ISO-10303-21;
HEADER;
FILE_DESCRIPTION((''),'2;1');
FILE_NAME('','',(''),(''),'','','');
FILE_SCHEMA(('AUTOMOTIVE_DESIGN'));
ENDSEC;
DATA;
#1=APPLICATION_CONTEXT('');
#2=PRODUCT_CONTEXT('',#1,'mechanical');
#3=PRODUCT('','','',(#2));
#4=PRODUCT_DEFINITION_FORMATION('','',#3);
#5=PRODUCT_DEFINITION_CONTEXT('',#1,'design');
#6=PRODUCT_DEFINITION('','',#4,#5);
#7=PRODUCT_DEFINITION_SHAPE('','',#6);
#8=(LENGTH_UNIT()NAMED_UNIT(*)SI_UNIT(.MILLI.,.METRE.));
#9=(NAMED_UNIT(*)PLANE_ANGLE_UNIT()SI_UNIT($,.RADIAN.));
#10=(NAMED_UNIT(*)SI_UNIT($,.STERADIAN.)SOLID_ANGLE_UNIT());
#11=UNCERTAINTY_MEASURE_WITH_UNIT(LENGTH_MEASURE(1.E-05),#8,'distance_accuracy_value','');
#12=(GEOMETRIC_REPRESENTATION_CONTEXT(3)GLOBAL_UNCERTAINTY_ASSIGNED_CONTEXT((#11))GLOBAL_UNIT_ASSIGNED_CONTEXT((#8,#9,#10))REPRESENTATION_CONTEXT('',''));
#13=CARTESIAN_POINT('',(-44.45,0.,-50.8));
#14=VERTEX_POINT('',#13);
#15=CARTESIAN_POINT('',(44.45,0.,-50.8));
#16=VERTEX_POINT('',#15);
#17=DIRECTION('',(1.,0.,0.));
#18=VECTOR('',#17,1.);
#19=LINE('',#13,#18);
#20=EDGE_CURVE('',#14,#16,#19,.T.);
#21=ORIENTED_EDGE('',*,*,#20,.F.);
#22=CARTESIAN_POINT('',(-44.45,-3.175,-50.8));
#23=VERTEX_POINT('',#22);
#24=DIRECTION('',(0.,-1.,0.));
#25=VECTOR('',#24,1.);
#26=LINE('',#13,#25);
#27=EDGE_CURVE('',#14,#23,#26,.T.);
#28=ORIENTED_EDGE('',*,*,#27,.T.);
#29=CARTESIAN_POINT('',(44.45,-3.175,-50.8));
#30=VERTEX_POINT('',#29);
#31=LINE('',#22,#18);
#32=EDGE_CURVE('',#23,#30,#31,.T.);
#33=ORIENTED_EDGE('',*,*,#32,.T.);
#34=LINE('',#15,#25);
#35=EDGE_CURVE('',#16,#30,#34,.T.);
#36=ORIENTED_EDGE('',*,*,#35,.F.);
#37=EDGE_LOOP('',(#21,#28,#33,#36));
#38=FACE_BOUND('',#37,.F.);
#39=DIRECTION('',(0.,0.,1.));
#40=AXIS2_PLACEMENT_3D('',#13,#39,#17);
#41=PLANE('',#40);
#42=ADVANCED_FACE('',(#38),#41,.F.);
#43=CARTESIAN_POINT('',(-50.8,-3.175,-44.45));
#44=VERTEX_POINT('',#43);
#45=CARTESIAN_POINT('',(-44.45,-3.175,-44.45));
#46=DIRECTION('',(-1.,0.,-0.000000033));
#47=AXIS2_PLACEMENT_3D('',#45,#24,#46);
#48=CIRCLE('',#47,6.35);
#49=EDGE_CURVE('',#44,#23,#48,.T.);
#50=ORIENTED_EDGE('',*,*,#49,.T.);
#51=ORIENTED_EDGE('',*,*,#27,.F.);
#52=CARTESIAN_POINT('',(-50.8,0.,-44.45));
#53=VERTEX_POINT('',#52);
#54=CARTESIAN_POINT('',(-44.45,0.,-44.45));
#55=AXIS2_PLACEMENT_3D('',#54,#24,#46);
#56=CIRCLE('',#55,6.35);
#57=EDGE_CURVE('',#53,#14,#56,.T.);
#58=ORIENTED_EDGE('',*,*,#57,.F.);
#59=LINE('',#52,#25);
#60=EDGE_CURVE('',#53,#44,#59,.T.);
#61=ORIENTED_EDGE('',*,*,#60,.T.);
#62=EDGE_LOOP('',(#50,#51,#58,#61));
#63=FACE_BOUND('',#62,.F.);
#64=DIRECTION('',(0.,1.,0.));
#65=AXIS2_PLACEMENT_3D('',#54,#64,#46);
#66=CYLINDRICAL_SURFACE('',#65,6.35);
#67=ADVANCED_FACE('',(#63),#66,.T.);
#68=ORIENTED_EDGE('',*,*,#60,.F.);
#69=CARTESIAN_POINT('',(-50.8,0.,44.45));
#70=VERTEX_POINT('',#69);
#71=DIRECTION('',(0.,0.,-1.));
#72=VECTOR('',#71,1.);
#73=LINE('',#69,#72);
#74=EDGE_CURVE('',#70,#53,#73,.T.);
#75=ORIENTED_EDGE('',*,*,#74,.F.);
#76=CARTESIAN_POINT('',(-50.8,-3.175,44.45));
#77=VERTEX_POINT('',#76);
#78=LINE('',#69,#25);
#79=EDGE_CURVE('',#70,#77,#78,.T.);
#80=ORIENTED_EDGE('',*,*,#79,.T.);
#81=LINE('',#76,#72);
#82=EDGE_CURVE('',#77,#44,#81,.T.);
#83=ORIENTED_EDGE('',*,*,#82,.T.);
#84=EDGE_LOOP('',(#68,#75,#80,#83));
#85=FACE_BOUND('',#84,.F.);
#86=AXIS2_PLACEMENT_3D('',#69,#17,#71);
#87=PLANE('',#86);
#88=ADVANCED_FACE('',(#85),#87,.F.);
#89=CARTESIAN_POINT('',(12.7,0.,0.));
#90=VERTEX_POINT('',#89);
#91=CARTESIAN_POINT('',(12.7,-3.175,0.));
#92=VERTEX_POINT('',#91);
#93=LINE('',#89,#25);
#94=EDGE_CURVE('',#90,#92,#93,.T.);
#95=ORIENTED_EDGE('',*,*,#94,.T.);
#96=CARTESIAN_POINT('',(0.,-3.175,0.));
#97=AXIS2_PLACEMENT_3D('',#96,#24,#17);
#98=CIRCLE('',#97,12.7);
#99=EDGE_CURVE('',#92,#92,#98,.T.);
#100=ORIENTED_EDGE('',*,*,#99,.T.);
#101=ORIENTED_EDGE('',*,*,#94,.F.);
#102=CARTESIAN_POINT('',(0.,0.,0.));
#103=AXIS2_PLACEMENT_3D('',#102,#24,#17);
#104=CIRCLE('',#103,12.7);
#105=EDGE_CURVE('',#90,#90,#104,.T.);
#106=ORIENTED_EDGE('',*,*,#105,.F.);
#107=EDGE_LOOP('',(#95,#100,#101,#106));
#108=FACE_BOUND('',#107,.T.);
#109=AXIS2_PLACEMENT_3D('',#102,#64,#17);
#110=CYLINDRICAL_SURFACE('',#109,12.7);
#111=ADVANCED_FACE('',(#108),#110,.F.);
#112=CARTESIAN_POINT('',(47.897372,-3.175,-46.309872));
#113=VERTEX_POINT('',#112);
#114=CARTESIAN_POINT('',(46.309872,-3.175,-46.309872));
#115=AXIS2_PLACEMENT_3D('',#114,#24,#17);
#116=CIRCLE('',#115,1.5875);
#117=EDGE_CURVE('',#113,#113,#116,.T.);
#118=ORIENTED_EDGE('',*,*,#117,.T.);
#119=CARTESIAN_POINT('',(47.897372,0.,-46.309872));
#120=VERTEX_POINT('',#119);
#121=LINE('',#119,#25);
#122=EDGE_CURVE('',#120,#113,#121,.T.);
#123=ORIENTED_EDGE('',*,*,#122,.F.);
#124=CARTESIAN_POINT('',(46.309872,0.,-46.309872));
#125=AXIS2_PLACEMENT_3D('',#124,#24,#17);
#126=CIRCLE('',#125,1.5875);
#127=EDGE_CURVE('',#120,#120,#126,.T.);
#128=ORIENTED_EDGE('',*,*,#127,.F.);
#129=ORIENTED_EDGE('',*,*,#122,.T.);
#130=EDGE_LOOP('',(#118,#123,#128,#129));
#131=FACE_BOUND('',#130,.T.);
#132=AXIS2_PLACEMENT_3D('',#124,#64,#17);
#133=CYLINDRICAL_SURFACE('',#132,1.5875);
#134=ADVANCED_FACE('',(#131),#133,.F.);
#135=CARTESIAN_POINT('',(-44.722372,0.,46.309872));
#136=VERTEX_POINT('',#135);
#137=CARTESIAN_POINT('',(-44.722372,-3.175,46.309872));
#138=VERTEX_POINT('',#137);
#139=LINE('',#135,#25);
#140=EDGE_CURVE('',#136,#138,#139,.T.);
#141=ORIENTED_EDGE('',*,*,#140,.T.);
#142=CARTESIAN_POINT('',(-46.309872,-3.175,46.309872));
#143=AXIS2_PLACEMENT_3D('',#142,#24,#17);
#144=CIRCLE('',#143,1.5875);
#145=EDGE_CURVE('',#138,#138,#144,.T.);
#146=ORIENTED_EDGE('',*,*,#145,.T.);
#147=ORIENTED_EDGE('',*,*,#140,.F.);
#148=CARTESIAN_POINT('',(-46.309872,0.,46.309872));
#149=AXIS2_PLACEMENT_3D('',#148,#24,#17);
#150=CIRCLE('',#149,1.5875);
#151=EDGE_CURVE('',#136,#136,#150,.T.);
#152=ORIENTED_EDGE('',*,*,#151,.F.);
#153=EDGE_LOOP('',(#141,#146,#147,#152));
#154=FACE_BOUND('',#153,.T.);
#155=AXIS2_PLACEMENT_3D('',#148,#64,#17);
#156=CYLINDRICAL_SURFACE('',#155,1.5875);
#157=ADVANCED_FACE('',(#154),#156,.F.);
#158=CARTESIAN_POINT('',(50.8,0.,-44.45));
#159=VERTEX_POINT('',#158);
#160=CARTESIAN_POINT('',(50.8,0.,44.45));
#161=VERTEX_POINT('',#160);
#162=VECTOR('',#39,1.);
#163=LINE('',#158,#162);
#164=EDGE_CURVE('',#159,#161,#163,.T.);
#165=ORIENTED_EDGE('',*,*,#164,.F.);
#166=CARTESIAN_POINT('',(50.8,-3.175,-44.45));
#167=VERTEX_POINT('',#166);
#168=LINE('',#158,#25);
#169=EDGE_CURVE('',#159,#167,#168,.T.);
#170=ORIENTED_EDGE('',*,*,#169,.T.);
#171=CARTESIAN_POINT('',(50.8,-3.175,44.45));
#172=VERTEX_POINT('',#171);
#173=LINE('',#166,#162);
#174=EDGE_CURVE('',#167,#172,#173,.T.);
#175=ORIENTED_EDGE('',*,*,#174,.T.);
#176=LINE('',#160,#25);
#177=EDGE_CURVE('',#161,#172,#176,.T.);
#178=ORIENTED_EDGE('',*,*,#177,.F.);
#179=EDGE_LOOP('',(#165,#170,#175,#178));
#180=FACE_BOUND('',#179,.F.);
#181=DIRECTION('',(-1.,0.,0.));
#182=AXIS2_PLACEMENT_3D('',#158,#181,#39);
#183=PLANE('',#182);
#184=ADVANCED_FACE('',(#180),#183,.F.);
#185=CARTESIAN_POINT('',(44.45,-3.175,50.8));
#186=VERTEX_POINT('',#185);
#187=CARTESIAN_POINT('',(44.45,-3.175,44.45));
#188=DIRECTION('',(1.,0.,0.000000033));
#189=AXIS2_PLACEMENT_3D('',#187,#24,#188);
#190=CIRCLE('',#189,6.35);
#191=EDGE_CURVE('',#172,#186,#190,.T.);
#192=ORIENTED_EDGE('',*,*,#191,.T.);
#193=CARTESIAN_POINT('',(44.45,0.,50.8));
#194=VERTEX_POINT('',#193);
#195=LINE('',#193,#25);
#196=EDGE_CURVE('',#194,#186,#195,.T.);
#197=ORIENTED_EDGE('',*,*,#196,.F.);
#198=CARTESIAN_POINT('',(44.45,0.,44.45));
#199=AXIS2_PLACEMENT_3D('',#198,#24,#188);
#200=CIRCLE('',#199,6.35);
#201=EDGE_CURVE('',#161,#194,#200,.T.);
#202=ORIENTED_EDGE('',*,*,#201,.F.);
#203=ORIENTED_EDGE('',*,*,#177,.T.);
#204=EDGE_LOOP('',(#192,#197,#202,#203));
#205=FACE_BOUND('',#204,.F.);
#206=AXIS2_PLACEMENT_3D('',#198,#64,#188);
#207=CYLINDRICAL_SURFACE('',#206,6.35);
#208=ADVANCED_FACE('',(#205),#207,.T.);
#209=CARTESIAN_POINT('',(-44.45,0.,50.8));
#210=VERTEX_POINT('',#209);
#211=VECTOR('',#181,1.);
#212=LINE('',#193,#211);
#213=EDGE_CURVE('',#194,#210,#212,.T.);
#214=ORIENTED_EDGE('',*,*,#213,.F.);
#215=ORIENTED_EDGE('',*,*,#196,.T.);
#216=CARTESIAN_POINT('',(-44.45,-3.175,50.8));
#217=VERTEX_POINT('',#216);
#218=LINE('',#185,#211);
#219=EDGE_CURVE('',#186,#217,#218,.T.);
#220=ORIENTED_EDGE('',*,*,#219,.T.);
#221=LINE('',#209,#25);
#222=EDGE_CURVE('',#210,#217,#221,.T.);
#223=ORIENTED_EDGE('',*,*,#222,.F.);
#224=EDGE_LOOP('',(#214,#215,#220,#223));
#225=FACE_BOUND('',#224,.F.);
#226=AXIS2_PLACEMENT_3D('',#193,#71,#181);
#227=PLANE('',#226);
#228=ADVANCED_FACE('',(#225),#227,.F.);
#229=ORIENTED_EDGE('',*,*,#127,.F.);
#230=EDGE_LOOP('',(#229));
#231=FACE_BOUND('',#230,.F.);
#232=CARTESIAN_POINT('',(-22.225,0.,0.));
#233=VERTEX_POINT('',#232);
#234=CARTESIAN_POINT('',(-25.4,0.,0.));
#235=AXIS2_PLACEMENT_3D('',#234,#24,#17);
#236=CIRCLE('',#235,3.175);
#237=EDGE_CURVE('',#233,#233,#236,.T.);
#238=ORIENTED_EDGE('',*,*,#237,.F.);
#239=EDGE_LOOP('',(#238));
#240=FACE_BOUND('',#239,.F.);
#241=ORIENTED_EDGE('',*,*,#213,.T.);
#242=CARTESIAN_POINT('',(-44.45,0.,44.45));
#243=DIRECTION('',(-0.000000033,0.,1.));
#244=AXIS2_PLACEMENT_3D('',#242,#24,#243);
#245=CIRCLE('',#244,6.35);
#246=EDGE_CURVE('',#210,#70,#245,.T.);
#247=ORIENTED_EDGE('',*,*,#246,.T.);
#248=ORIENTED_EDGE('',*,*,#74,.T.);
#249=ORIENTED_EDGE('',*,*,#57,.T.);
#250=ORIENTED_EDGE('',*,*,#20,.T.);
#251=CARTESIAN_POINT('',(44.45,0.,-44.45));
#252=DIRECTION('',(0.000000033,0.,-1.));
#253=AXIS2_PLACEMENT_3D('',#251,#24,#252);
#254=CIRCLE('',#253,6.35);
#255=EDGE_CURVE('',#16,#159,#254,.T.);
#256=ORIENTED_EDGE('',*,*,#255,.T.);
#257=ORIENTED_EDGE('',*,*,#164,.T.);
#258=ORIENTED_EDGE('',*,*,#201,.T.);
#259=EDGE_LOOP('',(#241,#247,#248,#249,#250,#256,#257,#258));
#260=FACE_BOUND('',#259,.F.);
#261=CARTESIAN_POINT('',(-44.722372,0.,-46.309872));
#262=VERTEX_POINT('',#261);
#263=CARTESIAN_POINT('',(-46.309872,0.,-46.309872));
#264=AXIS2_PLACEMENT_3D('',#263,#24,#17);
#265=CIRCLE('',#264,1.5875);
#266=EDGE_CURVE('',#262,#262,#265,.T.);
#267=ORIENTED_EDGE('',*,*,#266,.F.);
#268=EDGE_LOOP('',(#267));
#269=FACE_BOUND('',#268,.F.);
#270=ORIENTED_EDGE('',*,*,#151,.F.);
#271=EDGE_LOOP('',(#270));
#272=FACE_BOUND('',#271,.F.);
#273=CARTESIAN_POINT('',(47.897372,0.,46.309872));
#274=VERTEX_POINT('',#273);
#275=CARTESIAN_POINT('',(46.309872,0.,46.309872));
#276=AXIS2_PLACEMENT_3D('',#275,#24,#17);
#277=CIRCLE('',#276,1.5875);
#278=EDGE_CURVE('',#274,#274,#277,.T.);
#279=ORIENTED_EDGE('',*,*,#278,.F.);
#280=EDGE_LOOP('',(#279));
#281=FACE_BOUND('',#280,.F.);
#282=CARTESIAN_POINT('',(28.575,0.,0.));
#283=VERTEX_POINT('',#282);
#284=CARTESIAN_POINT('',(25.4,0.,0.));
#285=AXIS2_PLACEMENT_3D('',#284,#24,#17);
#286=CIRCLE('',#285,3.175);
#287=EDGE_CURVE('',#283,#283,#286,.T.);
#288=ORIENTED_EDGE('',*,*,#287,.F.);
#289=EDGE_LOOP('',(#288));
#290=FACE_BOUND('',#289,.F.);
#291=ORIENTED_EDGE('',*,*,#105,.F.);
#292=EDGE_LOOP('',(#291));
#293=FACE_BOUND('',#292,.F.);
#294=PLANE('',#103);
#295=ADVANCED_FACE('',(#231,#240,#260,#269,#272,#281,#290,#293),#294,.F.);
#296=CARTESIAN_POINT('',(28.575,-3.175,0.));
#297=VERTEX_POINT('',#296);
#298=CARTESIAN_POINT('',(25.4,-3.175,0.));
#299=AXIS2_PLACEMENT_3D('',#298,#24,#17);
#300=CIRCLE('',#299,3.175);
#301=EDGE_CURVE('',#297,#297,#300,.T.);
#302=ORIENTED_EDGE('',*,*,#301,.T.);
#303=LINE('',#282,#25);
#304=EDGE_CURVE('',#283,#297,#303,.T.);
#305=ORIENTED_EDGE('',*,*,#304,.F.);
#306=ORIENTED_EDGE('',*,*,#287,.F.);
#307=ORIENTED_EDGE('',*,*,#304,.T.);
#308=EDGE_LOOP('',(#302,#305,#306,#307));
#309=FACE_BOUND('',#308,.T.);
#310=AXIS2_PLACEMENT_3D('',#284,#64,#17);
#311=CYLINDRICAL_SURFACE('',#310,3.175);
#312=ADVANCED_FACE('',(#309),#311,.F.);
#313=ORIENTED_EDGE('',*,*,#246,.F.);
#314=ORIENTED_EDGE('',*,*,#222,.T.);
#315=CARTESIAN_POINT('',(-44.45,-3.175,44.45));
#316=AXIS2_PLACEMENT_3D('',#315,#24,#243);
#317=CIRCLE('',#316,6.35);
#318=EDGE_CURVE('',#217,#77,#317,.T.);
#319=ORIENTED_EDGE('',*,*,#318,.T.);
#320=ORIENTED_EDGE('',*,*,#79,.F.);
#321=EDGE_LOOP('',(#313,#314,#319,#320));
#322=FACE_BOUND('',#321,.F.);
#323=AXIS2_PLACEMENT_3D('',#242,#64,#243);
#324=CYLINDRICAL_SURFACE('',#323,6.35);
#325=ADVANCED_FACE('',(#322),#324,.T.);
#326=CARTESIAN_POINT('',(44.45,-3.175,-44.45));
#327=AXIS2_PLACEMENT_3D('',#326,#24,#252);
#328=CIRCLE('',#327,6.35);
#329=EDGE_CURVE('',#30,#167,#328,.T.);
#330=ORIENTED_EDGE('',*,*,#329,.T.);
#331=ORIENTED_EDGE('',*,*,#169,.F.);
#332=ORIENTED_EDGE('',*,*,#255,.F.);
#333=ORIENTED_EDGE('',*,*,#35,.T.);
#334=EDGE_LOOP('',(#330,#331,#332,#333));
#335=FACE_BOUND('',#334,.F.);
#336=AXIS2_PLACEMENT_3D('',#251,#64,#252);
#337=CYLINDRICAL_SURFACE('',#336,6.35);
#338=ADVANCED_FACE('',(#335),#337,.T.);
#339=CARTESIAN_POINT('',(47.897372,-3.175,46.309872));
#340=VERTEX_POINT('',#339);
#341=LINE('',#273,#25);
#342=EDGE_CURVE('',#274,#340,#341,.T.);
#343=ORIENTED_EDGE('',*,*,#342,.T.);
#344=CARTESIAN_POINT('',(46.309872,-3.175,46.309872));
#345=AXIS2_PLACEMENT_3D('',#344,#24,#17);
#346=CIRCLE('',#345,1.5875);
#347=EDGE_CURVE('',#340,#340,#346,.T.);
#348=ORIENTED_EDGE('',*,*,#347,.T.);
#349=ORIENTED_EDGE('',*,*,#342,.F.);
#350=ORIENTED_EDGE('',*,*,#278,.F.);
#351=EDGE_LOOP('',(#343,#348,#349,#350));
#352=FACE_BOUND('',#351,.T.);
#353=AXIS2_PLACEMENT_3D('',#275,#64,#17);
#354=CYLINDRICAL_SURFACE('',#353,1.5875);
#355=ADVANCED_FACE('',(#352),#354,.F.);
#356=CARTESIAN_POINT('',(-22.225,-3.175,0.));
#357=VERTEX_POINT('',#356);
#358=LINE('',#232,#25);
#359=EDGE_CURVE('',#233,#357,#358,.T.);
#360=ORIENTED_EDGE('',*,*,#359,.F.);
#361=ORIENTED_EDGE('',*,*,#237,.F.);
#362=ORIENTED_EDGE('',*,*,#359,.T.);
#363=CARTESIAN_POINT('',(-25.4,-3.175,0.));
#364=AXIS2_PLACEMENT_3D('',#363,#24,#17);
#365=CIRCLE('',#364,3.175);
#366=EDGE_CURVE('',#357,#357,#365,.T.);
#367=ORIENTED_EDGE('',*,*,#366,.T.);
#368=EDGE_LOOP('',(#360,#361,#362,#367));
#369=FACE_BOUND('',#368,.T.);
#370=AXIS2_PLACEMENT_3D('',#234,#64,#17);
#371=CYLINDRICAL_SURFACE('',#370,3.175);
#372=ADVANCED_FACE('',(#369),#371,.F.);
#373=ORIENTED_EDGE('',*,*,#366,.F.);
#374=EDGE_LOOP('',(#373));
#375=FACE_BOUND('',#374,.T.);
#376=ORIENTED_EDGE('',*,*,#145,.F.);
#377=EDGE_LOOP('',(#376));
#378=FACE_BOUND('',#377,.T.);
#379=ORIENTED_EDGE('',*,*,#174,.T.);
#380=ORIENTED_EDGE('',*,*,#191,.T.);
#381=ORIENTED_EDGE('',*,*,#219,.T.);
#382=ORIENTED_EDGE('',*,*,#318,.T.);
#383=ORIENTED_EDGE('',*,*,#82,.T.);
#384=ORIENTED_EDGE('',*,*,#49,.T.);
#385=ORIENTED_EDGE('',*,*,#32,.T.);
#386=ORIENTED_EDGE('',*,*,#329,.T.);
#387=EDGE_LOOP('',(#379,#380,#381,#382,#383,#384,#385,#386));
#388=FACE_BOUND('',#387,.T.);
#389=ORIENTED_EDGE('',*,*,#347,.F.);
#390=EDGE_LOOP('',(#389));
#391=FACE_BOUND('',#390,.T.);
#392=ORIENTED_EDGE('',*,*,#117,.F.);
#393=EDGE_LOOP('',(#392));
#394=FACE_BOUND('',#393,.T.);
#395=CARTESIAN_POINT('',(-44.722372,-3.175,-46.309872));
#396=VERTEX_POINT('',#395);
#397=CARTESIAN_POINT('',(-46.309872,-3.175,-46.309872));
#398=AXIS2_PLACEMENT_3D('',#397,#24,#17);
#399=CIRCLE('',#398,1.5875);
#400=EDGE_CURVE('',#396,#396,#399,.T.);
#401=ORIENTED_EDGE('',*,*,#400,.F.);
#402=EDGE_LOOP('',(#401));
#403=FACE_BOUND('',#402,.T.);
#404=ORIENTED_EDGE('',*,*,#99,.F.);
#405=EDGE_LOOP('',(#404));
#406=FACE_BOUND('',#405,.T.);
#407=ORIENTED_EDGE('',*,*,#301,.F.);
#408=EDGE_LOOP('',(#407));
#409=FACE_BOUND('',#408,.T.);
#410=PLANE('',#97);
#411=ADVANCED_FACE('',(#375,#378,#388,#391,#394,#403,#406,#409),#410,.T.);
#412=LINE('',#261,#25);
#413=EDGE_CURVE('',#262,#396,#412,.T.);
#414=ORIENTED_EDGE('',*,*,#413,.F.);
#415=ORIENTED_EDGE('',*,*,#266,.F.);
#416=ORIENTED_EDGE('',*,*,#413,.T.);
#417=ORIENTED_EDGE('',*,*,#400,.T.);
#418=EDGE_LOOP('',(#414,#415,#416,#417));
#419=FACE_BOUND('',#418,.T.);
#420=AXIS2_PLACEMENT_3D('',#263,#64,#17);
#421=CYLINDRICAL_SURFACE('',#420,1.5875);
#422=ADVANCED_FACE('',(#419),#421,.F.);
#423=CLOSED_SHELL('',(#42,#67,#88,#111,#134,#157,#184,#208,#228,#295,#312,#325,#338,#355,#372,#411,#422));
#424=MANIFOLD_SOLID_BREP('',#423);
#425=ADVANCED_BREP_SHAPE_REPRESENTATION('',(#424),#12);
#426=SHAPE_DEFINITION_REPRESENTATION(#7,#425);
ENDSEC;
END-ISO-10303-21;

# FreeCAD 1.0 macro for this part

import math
import FreeCAD as App
import Part
import Sketcher
Q = App.Units.Quantity

doc = App.newDocument("Part")
body = doc.addObject("PartDesign::Body", "Body")

sketch1 = doc.addObject("Sketcher::SketchObject", "Sketch")
body.addObject(sketch1)
sketch1.AttachmentSupport = (doc.XZ_Plane, [""])
sketch1.MapMode = "FlatFace"
sketch1.addGeometry([
    Part.LineSegment(App.Vector(-44.45, -50.8, 0), App.Vector(44.45, -50.8, 0)),
    Part.ArcOfCircle(Part.Circle(App.Vector(44.45, -44.45, 0), App.Vector(0, 0, 1), 6.35), math.radians(-89.999998), math.radians(-0.000002)),
    Part.LineSegment(App.Vector(50.8, -44.45, 0), App.Vector(50.8, 44.45, 0)),
    Part.ArcOfCircle(Part.Circle(App.Vector(44.45, 44.45, 0), App.Vector(0, 0, 1), 6.35), math.radians(0.000002), math.radians(89.999998)),
    Part.LineSegment(App.Vector(44.45, 50.8, 0), App.Vector(-44.45, 50.8, 0)),
    Part.ArcOfCircle(Part.Circle(App.Vector(-44.45, 44.45, 0), App.Vector(0, 0, 1), 6.35), math.radians(90.000002), math.radians(179.999998)),
    Part.LineSegment(App.Vector(-50.8, 44.45, 0), App.Vector(-50.8, -44.45, 0)),
    Part.ArcOfCircle(Part.Circle(App.Vector(-44.45, -44.45, 0), App.Vector(0, 0, 1), 6.35), math.radians(-179.999998), math.radians(-90.000002)),
    Part.Circle(App.Vector(-46.309872, -46.309872, 0), App.Vector(0, 0, 1), 1.5875),
    Part.Circle(App.Vector(46.309872, -46.309872, 0), App.Vector(0, 0, 1), 1.5875),
    Part.Circle(App.Vector(0, 0, 0), App.Vector(0, 0, 1), 12.7),
    Part.Circle(App.Vector(-25.4, 0, 0), App.Vector(0, 0, 1), 3.175),
    Part.Circle(App.Vector(-46.309872, 46.309872, 0), App.Vector(0, 0, 1), 1.5875),
    Part.Circle(App.Vector(25.4, 0, 0), App.Vector(0, 0, 1), 3.175),
    Part.Circle(App.Vector(46.309872, 46.309872, 0), App.Vector(0, 0, 1), 1.5875),
], False)
sketch1.addConstraint([
    Sketcher.Constraint("Tangent", 0, 2, 1, 1),
    Sketcher.Constraint("Tangent", 1, 2, 2, 1),
    Sketcher.Constraint("Tangent", 2, 2, 3, 1),
    Sketcher.Constraint("Tangent", 3, 2, 4, 1),
    Sketcher.Constraint("Tangent", 4, 2, 5, 1),
    Sketcher.Constraint("Tangent", 5, 2, 6, 1),
    Sketcher.Constraint("Tangent", 6, 2, 7, 1),
    Sketcher.Constraint("Tangent", 7, 2, 0, 1),
    Sketcher.Constraint("Horizontal", 0),
    Sketcher.Constraint("Vertical", 2),
    Sketcher.Constraint("Horizontal", 4),
    Sketcher.Constraint("Vertical", 6),
    Sketcher.Constraint("Coincident", 10, 3, -1, 1),
    Sketcher.Constraint("Equal", 1, 3),
    Sketcher.Constraint("Equal", 3, 5),
    Sketcher.Constraint("Equal", 5, 7),
    Sketcher.Constraint("Equal", 8, 9),
    Sketcher.Constraint("Equal", 9, 12),
    Sketcher.Constraint("Equal", 11, 13),
    Sketcher.Constraint("Equal", 12, 14),
    Sketcher.Constraint("Symmetric", 1, 3, 5, 3, -1, 1),
    Sketcher.Constraint("Symmetric", 9, 3, 12, 3, -1, 1),
    Sketcher.Constraint("Symmetric", 11, 3, 13, 3, -1, 1),
    Sketcher.Constraint("Symmetric", 8, 3, 14, 3, -1, 1),
    Sketcher.Constraint("Symmetric", 8, 3, 9, 3, -2),
    Sketcher.Constraint("PointOnObject", 11, 3, -1),
    Sketcher.Constraint("Equal", 4, 2),
    Sketcher.Constraint("Diameter", 10, Q("1 in")),
    Sketcher.Constraint("Diameter", 11, Q("0.25 in")),
    Sketcher.Constraint("Radius", 1, Q("0.25 in")),
    Sketcher.Constraint("Diameter", 8, Q("0.125 in")),
    Sketcher.Constraint("DistanceX", 0, 1, 0, 2, Q("3.5 in")),
    Sketcher.Constraint("DistanceX", 11, 3, -1, 1, Q("1 in")),
    Sketcher.Constraint("DistanceX", 8, 3, 1, 3, 90.759872),
    Sketcher.Constraint("DistanceY", 8, 3, 5, 3, 90.759872),
])
pad1 = doc.addObject("PartDesign::Pad", "Pad")
body.addObject(pad1)
pad1.Profile = sketch1
pad1.Length = Q("0.125 in")

doc.recompute()
